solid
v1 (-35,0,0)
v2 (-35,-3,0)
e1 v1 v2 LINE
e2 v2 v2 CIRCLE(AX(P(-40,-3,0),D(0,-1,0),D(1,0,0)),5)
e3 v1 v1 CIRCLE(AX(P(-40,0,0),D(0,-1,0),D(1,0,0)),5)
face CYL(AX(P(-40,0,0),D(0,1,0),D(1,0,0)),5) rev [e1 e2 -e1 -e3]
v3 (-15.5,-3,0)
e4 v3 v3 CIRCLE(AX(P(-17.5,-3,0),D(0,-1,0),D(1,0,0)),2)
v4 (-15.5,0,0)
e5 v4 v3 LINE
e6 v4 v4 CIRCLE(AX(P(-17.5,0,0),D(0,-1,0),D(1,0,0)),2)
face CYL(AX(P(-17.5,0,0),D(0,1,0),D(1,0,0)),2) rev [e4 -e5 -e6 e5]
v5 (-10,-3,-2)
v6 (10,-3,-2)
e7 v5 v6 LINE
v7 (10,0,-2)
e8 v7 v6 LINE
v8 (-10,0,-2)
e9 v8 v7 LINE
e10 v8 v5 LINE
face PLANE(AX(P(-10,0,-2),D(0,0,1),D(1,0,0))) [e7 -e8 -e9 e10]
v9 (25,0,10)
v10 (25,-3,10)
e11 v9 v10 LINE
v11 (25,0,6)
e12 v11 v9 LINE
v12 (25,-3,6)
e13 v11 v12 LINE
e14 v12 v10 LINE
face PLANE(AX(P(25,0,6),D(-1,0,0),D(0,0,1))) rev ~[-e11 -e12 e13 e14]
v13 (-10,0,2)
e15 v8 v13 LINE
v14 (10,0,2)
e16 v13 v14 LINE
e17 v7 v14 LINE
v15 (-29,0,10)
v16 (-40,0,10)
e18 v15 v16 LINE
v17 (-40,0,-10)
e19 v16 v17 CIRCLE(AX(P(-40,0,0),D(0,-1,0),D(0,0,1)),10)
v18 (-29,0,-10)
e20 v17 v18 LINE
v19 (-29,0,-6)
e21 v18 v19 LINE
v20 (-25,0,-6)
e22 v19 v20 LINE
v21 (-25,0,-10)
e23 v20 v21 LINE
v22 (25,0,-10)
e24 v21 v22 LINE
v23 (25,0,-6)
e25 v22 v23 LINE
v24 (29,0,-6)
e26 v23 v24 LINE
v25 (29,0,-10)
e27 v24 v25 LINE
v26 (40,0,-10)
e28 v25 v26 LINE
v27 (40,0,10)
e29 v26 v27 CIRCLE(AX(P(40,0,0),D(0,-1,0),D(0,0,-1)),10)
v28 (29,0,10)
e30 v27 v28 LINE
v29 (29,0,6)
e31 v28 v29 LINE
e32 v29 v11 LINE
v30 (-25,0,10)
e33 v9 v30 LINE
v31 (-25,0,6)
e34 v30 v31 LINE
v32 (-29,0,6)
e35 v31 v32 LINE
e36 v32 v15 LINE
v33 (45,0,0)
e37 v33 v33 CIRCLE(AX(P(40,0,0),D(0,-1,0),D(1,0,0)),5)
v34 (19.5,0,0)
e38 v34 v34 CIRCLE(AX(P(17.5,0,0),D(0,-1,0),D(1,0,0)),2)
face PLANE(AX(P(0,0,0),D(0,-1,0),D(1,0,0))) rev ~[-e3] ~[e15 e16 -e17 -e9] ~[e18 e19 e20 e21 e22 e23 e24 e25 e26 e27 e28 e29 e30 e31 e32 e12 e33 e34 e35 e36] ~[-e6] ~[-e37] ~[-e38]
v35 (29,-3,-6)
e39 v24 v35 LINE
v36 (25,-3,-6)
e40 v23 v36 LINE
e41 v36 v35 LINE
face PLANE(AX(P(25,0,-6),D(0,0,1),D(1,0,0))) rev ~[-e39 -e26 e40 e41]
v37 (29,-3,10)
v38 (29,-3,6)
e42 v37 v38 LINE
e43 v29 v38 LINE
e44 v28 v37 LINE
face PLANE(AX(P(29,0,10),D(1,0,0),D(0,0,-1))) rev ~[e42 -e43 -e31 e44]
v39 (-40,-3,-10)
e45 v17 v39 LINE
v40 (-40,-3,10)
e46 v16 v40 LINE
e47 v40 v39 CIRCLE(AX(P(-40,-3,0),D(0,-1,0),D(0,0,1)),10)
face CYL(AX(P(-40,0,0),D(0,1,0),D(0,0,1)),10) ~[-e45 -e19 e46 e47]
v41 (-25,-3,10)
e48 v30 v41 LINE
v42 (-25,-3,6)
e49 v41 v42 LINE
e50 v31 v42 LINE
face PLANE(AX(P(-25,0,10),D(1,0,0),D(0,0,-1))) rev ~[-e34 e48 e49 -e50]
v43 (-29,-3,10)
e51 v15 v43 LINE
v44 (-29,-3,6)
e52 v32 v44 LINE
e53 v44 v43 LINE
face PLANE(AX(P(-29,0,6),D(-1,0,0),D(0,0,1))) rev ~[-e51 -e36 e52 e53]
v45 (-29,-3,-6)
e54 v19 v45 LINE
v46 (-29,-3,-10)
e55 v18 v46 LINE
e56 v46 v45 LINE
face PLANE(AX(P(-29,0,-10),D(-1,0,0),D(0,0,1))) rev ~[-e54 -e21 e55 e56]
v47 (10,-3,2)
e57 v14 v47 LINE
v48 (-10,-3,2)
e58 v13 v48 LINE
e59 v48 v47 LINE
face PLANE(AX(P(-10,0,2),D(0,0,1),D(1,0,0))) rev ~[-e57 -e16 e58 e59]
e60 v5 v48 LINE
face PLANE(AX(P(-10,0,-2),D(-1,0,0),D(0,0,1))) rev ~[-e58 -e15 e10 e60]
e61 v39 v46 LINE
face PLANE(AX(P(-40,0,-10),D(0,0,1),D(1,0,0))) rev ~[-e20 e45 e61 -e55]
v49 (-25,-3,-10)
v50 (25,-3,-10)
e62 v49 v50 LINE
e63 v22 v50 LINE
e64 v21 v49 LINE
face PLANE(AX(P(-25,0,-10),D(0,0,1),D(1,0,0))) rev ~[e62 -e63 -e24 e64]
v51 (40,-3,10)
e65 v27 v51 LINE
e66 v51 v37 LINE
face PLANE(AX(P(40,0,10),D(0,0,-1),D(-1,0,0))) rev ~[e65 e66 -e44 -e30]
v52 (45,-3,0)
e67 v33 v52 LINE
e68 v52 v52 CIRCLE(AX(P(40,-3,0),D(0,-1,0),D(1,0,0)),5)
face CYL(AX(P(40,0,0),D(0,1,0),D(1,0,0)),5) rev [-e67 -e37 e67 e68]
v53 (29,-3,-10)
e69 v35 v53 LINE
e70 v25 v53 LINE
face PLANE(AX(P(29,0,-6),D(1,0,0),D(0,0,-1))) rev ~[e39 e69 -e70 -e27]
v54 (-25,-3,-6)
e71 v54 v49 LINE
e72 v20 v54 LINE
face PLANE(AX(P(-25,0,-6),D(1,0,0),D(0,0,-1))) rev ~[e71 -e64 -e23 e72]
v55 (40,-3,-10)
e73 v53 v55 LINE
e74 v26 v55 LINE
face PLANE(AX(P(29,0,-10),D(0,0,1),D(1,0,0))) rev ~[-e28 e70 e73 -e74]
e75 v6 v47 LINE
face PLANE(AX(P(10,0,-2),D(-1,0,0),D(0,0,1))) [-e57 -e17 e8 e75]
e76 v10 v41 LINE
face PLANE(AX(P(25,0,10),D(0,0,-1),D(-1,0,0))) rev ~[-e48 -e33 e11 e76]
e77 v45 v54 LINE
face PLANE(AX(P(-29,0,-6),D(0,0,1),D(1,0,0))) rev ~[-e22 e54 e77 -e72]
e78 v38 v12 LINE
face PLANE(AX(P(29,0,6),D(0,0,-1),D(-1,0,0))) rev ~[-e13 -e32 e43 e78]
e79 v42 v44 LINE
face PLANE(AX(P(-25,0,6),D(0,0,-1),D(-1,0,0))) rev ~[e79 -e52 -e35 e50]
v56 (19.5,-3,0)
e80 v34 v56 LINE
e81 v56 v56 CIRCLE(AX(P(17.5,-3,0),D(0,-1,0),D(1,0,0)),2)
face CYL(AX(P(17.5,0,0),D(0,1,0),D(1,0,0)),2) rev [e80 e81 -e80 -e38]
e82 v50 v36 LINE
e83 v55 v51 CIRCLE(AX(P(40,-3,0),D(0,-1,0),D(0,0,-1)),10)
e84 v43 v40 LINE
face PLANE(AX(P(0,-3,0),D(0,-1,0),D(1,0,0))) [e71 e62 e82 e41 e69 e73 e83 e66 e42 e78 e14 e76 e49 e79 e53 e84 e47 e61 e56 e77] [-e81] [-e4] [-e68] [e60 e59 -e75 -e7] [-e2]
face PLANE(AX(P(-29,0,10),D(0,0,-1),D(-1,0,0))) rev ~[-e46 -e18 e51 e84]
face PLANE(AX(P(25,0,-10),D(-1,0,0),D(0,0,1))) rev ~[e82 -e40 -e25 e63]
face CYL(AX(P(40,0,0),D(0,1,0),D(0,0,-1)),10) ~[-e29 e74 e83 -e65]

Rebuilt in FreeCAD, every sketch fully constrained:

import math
import FreeCAD as App
import Part
import Sketcher


def add_polygon(sketch, points):
    """Adds a closed chain of lines whose ends are joined by coincident constraints."""
    first, n = sketch.GeometryCount, len(points)
    for a, b in zip(points, points[1:] + points[:1]):
        sketch.addGeometry(Part.LineSegment(App.Vector(*a, 0), App.Vector(*b, 0)), False)
    for i in range(n):
        sketch.addConstraint(Sketcher.Constraint("Coincident", first + i, 2, first + (i + 1) % n, 1))

doc = App.newDocument("Part")
body = doc.addObject("PartDesign::Body", "Body")

# Sketch on XZ plane
sketch1 = body.newObject("Sketcher::SketchObject", "Sketch")
sketch1.AttachmentSupport = (doc.getObject("XZ_Plane"), [""])
sketch1.MapMode = "FlatFace"
sketch1.addGeometry(Part.LineSegment(App.Vector(-29, 10, 0), App.Vector(-40, 10, 0)), False)  # 0
sketch1.addGeometry(Part.ArcOfCircle(Part.Circle(App.Vector(-40, 0, 0), App.Vector(0, 0, 1), 10), math.radians(90), math.radians(270)), False)  # 1
sketch1.addGeometry(Part.LineSegment(App.Vector(-40, -10, 0), App.Vector(-29, -10, 0)), False)  # 2
sketch1.addGeometry(Part.LineSegment(App.Vector(-29, -10, 0), App.Vector(-29, -6, 0)), False)  # 3
sketch1.addGeometry(Part.LineSegment(App.Vector(-29, -6, 0), App.Vector(-25, -6, 0)), False)  # 4
sketch1.addGeometry(Part.LineSegment(App.Vector(-25, -6, 0), App.Vector(-25, -10, 0)), False)  # 5
sketch1.addGeometry(Part.LineSegment(App.Vector(-25, -10, 0), App.Vector(25, -10, 0)), False)  # 6
sketch1.addGeometry(Part.LineSegment(App.Vector(25, -10, 0), App.Vector(25, -6, 0)), False)  # 7
sketch1.addGeometry(Part.LineSegment(App.Vector(25, -6, 0), App.Vector(29, -6, 0)), False)  # 8
sketch1.addGeometry(Part.LineSegment(App.Vector(29, -6, 0), App.Vector(29, -10, 0)), False)  # 9
sketch1.addGeometry(Part.LineSegment(App.Vector(29, -10, 0), App.Vector(40, -10, 0)), False)  # 10
sketch1.addGeometry(Part.ArcOfCircle(Part.Circle(App.Vector(40, 0, 0), App.Vector(0, 0, 1), 10), math.radians(-90), math.radians(90)), False)  # 11
sketch1.addGeometry(Part.LineSegment(App.Vector(40, 10, 0), App.Vector(29, 10, 0)), False)  # 12
sketch1.addGeometry(Part.LineSegment(App.Vector(29, 10, 0), App.Vector(29, 6, 0)), False)  # 13
sketch1.addGeometry(Part.LineSegment(App.Vector(29, 6, 0), App.Vector(25, 6, 0)), False)  # 14
sketch1.addGeometry(Part.LineSegment(App.Vector(25, 6, 0), App.Vector(25, 10, 0)), False)  # 15
sketch1.addGeometry(Part.LineSegment(App.Vector(25, 10, 0), App.Vector(-25, 10, 0)), False)  # 16
sketch1.addGeometry(Part.LineSegment(App.Vector(-25, 10, 0), App.Vector(-25, 6, 0)), False)  # 17
sketch1.addGeometry(Part.LineSegment(App.Vector(-25, 6, 0), App.Vector(-29, 6, 0)), False)  # 18
sketch1.addGeometry(Part.LineSegment(App.Vector(-29, 6, 0), App.Vector(-29, 10, 0)), False)  # 19
sketch1.addGeometry(Part.Circle(App.Vector(-40, 0, 0), App.Vector(0, 0, 1), 5), False)  # 20
sketch1.addGeometry(Part.Circle(App.Vector(-17.5, 0, 0), App.Vector(0, 0, 1), 2), False)  # 21
add_polygon(sketch1, [(10, -2), (-10, -2), (-10, 2), (10, 2)])  # lines 22-25
sketch1.addGeometry(Part.Circle(App.Vector(17.5, 0, 0), App.Vector(0, 0, 1), 2), False)  # 26
sketch1.addGeometry(Part.Circle(App.Vector(40, 0, 0), App.Vector(0, 0, 1), 5), False)  # 27
sketch1.addConstraint([
    Sketcher.Constraint("Tangent", 0, 2, 1, 1),
    Sketcher.Constraint("Tangent", 1, 2, 2, 1),
    Sketcher.Constraint("Coincident", 2, 2, 3, 1),
    Sketcher.Constraint("Coincident", 3, 2, 4, 1),
    Sketcher.Constraint("Coincident", 4, 2, 5, 1),
    Sketcher.Constraint("Coincident", 5, 2, 6, 1),
    Sketcher.Constraint("Coincident", 6, 2, 7, 1),
    Sketcher.Constraint("Coincident", 7, 2, 8, 1),
    Sketcher.Constraint("Coincident", 8, 2, 9, 1),
    Sketcher.Constraint("Coincident", 9, 2, 10, 1),
    Sketcher.Constraint("Tangent", 10, 2, 11, 1),
    Sketcher.Constraint("Tangent", 11, 2, 12, 1),
    Sketcher.Constraint("Coincident", 12, 2, 13, 1),
    Sketcher.Constraint("Coincident", 13, 2, 14, 1),
    Sketcher.Constraint("Coincident", 14, 2, 15, 1),
    Sketcher.Constraint("Coincident", 15, 2, 16, 1),
    Sketcher.Constraint("Coincident", 16, 2, 17, 1),
    Sketcher.Constraint("Coincident", 17, 2, 18, 1),
    Sketcher.Constraint("Coincident", 18, 2, 19, 1),
    Sketcher.Constraint("Coincident", 19, 2, 0, 1),
    Sketcher.Constraint("Horizontal", 0),
    Sketcher.Constraint("Horizontal", 2),
    Sketcher.Constraint("Vertical", 3),
    Sketcher.Constraint("Horizontal", 4),
    Sketcher.Constraint("Vertical", 5),
    Sketcher.Constraint("Horizontal", 6),
    Sketcher.Constraint("Vertical", 7),
    Sketcher.Constraint("Horizontal", 8),
    Sketcher.Constraint("Vertical", 9),
    Sketcher.Constraint("Horizontal", 10),
    Sketcher.Constraint("Horizontal", 12),
    Sketcher.Constraint("Vertical", 13),
    Sketcher.Constraint("Horizontal", 14),
    Sketcher.Constraint("Vertical", 15),
    Sketcher.Constraint("Horizontal", 16),
    Sketcher.Constraint("Vertical", 17),
    Sketcher.Constraint("Horizontal", 18),
    Sketcher.Constraint("Vertical", 19),
    Sketcher.Constraint("Horizontal", 22),
    Sketcher.Constraint("Vertical", 23),
    Sketcher.Constraint("Horizontal", 24),
    Sketcher.Constraint("Vertical", 25),
    Sketcher.Constraint("Coincident", 20, 3, 1, 3),
    Sketcher.Constraint("Coincident", 27, 3, 11, 3),
    Sketcher.Constraint("Equal", 1, 11),
    Sketcher.Constraint("Equal", 21, 26),
    Sketcher.Constraint("Equal", 20, 27),
    Sketcher.Constraint("Symmetric", 1, 3, 11, 3, -1, 1),
    Sketcher.Constraint("Symmetric", 21, 3, 26, 3, -1, 1),
    Sketcher.Constraint("Symmetric", 3, 2, 13, 2, -1, 1),
    Sketcher.Constraint("Symmetric", 5, 2, 15, 2, -1, 1),
    Sketcher.Constraint("Symmetric", 7, 2, 17, 2, -1, 1),
    Sketcher.Constraint("Symmetric", 22, 2, 24, 2, -1, 1),
    Sketcher.Constraint("Symmetric", 4, 2, 7, 2, -2),
    Sketcher.Constraint("Symmetric", 2, 2, 9, 2, -2),
    Sketcher.Constraint("PointOnObject", 21, 3, -1),
    Sketcher.Constraint("Horizontal", 2, 2, 5, 2),
    Sketcher.Constraint("Vertical", 3, 2, 18, 2),
    Sketcher.Constraint("Equal", 18, 3),
    Sketcher.Constraint("Equal", 19, 23),
    Sketcher.Constraint("Diameter", 20, 10.0),
    Sketcher.Constraint("Diameter", 21, 4.0),
    Sketcher.Constraint("Radius", 1, 10.0),
    Sketcher.Constraint("DistanceX", 0, 2, 0, 1, 11.0),
    Sketcher.Constraint("DistanceX", 4, 1, 4, 2, 4.0),
    Sketcher.Constraint("DistanceX", 6, 1, 6, 2, 50.0),
    Sketcher.Constraint("DistanceX", 22, 2, 22, 1, 20.0),
    Sketcher.Constraint("DistanceX", 21, 3, 26, 3, 35.0),
])
pad1 = body.newObject("PartDesign::Pad", "Pad")
pad1.Profile = sketch1
pad1.Length = 3

doc.recompute()
